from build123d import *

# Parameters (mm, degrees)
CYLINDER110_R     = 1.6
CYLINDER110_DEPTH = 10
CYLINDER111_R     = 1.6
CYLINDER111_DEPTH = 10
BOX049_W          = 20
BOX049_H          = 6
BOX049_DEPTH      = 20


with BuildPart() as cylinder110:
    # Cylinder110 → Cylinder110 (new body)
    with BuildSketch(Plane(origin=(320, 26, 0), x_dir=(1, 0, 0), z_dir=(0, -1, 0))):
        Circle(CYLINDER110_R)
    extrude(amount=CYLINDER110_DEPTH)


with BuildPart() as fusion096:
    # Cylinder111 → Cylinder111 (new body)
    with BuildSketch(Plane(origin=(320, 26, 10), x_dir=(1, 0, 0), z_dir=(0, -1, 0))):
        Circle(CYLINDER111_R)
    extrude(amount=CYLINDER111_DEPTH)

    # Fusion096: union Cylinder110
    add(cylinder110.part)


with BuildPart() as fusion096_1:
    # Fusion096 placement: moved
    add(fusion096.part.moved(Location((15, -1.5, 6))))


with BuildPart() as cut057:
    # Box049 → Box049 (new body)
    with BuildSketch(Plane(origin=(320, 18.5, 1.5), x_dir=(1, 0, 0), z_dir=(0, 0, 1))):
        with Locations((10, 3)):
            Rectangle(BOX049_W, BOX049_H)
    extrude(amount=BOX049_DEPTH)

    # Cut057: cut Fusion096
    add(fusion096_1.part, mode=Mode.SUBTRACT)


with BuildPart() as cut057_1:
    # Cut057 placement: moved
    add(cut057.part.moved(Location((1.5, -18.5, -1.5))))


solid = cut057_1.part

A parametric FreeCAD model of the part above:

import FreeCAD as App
import Part
import Sketcher
Q = App.Units.Quantity

doc = App.newDocument("Part")
body = doc.addObject("PartDesign::Body", "Body")

# Sketch on XZ plane
sketch1 = body.newObject("Sketcher::SketchObject", "Sketch")
sketch1.AttachmentSupport = (doc.getObject("XZ_Plane"), [""])
sketch1.MapMode = "FlatFace"
sketch1.AttachmentOffset = App.Placement(App.Vector(0, 0, -26), App.Rotation())
sketch1.addGeometry(Part.Circle(App.Vector(320, 0, 0), App.Vector(0, 0, 1), 1.6), False)
sketch1.addConstraint([
    Sketcher.Constraint("PointOnObject", 0, 3, -1),
    Sketcher.Constraint("Diameter", 0, Q("3.2 mm")),
    Sketcher.Constraint("DistanceX", -1, 1, 0, 3, Q("320 mm")),
])
pad1 = body.newObject("PartDesign::Pad", "Pad")
pad1.Profile = sketch1
pad1.Length = 10
body2 = doc.addObject("PartDesign::Body", "Body001")
body2.AllowCompound = True

# Sketch on XZ plane
sketch2 = body2.newObject("Sketcher::SketchObject", "Sketch001")
sketch2.AttachmentSupport = (doc.getObject("XZ_Plane001"), [""])
sketch2.MapMode = "FlatFace"
sketch2.AttachmentOffset = App.Placement(App.Vector(0, 0, -26), App.Rotation())
sketch2.addGeometry(Part.Circle(App.Vector(320, 10, 0), App.Vector(0, 0, 1), 1.6), False)
sketch2.addConstraint([
    Sketcher.Constraint("Diameter", 0, Q("3.2 mm")),
    Sketcher.Constraint("DistanceX", -1, 1, 0, 3, Q("320 mm")),
    Sketcher.Constraint("DistanceY", -1, 1, 0, 3, Q("10 mm")),
])
pad2 = body2.newObject("PartDesign::Pad", "Pad001")
pad2.Profile = sketch2
pad2.Length = 10
doc.recompute()

boolean = body2.newObject("PartDesign::Boolean", "Boolean")
boolean.Type = "Fuse"
boolean.addObjects([body])
body3 = doc.addObject("PartDesign::Body", "Body002")
body3.AllowCompound = True
doc.recompute()

body2.Placement = App.Placement(App.Vector(15, -1.5, 6), App.Rotation(App.Vector(0, 0, 1), 0))
boolean2 = body3.newObject("PartDesign::Boolean", "Boolean001")
boolean2.Type = "Fuse"
boolean2.addObjects([body2])
body4 = doc.addObject("PartDesign::Body", "Body003")

# Sketch on XY plane
sketch3 = body4.newObject("Sketcher::SketchObject", "Sketch002")
sketch3.AttachmentSupport = (doc.getObject("XY_Plane003"), [""])
sketch3.MapMode = "FlatFace"
sketch3.AttachmentOffset = App.Placement(App.Vector(0, 0, 1.5), App.Rotation())
sketch3.addGeometry([
    Part.LineSegment(App.Vector(320, 24, 0), App.Vector(320, 18, 0)),
    Part.LineSegment(App.Vector(320, 18, 0), App.Vector(340, 18, 0)),
    Part.LineSegment(App.Vector(340, 18, 0), App.Vector(340, 24, 0)),
    Part.LineSegment(App.Vector(340, 24, 0), App.Vector(320, 24, 0)),
], False)
sketch3.addConstraint([
    Sketcher.Constraint("Coincident", 0, 2, 1, 1),
    Sketcher.Constraint("Coincident", 1, 2, 2, 1),
    Sketcher.Constraint("Coincident", 2, 2, 3, 1),
    Sketcher.Constraint("Coincident", 3, 2, 0, 1),
    Sketcher.Constraint("Vertical", 0),
    Sketcher.Constraint("Horizontal", 1),
    Sketcher.Constraint("Vertical", 2),
    Sketcher.Constraint("Horizontal", 3),
    Sketcher.Constraint("DistanceX", 1, 1, 1, 2, Q("20 mm")),
    Sketcher.Constraint("DistanceY", 0, 2, 0, 1, Q("6 mm")),
    Sketcher.Constraint("DistanceX", -1, 1, 0, 2, Q("320 mm")),
    Sketcher.Constraint("DistanceY", -1, 1, 0, 2, Q("18.5 mm")),
])
pad3 = body4.newObject("PartDesign::Pad", "Pad002")
pad3.Profile = sketch3
pad3.Length = 20
doc.recompute()

boolean3 = body4.newObject("PartDesign::Boolean", "Boolean002")
boolean3.Type = "Cut"
boolean3.addObjects([body3])
body5 = doc.addObject("PartDesign::Body", "Body004")
doc.recompute()

body4.Placement = App.Placement(App.Vector(1.5, -18.5, -1.5), App.Rotation(App.Vector(0, 0, 1), 0))
boolean4 = body5.newObject("PartDesign::Boolean", "Boolean003")
boolean4.Type = "Fuse"
boolean4.addObjects([body4])

doc.recompute()
